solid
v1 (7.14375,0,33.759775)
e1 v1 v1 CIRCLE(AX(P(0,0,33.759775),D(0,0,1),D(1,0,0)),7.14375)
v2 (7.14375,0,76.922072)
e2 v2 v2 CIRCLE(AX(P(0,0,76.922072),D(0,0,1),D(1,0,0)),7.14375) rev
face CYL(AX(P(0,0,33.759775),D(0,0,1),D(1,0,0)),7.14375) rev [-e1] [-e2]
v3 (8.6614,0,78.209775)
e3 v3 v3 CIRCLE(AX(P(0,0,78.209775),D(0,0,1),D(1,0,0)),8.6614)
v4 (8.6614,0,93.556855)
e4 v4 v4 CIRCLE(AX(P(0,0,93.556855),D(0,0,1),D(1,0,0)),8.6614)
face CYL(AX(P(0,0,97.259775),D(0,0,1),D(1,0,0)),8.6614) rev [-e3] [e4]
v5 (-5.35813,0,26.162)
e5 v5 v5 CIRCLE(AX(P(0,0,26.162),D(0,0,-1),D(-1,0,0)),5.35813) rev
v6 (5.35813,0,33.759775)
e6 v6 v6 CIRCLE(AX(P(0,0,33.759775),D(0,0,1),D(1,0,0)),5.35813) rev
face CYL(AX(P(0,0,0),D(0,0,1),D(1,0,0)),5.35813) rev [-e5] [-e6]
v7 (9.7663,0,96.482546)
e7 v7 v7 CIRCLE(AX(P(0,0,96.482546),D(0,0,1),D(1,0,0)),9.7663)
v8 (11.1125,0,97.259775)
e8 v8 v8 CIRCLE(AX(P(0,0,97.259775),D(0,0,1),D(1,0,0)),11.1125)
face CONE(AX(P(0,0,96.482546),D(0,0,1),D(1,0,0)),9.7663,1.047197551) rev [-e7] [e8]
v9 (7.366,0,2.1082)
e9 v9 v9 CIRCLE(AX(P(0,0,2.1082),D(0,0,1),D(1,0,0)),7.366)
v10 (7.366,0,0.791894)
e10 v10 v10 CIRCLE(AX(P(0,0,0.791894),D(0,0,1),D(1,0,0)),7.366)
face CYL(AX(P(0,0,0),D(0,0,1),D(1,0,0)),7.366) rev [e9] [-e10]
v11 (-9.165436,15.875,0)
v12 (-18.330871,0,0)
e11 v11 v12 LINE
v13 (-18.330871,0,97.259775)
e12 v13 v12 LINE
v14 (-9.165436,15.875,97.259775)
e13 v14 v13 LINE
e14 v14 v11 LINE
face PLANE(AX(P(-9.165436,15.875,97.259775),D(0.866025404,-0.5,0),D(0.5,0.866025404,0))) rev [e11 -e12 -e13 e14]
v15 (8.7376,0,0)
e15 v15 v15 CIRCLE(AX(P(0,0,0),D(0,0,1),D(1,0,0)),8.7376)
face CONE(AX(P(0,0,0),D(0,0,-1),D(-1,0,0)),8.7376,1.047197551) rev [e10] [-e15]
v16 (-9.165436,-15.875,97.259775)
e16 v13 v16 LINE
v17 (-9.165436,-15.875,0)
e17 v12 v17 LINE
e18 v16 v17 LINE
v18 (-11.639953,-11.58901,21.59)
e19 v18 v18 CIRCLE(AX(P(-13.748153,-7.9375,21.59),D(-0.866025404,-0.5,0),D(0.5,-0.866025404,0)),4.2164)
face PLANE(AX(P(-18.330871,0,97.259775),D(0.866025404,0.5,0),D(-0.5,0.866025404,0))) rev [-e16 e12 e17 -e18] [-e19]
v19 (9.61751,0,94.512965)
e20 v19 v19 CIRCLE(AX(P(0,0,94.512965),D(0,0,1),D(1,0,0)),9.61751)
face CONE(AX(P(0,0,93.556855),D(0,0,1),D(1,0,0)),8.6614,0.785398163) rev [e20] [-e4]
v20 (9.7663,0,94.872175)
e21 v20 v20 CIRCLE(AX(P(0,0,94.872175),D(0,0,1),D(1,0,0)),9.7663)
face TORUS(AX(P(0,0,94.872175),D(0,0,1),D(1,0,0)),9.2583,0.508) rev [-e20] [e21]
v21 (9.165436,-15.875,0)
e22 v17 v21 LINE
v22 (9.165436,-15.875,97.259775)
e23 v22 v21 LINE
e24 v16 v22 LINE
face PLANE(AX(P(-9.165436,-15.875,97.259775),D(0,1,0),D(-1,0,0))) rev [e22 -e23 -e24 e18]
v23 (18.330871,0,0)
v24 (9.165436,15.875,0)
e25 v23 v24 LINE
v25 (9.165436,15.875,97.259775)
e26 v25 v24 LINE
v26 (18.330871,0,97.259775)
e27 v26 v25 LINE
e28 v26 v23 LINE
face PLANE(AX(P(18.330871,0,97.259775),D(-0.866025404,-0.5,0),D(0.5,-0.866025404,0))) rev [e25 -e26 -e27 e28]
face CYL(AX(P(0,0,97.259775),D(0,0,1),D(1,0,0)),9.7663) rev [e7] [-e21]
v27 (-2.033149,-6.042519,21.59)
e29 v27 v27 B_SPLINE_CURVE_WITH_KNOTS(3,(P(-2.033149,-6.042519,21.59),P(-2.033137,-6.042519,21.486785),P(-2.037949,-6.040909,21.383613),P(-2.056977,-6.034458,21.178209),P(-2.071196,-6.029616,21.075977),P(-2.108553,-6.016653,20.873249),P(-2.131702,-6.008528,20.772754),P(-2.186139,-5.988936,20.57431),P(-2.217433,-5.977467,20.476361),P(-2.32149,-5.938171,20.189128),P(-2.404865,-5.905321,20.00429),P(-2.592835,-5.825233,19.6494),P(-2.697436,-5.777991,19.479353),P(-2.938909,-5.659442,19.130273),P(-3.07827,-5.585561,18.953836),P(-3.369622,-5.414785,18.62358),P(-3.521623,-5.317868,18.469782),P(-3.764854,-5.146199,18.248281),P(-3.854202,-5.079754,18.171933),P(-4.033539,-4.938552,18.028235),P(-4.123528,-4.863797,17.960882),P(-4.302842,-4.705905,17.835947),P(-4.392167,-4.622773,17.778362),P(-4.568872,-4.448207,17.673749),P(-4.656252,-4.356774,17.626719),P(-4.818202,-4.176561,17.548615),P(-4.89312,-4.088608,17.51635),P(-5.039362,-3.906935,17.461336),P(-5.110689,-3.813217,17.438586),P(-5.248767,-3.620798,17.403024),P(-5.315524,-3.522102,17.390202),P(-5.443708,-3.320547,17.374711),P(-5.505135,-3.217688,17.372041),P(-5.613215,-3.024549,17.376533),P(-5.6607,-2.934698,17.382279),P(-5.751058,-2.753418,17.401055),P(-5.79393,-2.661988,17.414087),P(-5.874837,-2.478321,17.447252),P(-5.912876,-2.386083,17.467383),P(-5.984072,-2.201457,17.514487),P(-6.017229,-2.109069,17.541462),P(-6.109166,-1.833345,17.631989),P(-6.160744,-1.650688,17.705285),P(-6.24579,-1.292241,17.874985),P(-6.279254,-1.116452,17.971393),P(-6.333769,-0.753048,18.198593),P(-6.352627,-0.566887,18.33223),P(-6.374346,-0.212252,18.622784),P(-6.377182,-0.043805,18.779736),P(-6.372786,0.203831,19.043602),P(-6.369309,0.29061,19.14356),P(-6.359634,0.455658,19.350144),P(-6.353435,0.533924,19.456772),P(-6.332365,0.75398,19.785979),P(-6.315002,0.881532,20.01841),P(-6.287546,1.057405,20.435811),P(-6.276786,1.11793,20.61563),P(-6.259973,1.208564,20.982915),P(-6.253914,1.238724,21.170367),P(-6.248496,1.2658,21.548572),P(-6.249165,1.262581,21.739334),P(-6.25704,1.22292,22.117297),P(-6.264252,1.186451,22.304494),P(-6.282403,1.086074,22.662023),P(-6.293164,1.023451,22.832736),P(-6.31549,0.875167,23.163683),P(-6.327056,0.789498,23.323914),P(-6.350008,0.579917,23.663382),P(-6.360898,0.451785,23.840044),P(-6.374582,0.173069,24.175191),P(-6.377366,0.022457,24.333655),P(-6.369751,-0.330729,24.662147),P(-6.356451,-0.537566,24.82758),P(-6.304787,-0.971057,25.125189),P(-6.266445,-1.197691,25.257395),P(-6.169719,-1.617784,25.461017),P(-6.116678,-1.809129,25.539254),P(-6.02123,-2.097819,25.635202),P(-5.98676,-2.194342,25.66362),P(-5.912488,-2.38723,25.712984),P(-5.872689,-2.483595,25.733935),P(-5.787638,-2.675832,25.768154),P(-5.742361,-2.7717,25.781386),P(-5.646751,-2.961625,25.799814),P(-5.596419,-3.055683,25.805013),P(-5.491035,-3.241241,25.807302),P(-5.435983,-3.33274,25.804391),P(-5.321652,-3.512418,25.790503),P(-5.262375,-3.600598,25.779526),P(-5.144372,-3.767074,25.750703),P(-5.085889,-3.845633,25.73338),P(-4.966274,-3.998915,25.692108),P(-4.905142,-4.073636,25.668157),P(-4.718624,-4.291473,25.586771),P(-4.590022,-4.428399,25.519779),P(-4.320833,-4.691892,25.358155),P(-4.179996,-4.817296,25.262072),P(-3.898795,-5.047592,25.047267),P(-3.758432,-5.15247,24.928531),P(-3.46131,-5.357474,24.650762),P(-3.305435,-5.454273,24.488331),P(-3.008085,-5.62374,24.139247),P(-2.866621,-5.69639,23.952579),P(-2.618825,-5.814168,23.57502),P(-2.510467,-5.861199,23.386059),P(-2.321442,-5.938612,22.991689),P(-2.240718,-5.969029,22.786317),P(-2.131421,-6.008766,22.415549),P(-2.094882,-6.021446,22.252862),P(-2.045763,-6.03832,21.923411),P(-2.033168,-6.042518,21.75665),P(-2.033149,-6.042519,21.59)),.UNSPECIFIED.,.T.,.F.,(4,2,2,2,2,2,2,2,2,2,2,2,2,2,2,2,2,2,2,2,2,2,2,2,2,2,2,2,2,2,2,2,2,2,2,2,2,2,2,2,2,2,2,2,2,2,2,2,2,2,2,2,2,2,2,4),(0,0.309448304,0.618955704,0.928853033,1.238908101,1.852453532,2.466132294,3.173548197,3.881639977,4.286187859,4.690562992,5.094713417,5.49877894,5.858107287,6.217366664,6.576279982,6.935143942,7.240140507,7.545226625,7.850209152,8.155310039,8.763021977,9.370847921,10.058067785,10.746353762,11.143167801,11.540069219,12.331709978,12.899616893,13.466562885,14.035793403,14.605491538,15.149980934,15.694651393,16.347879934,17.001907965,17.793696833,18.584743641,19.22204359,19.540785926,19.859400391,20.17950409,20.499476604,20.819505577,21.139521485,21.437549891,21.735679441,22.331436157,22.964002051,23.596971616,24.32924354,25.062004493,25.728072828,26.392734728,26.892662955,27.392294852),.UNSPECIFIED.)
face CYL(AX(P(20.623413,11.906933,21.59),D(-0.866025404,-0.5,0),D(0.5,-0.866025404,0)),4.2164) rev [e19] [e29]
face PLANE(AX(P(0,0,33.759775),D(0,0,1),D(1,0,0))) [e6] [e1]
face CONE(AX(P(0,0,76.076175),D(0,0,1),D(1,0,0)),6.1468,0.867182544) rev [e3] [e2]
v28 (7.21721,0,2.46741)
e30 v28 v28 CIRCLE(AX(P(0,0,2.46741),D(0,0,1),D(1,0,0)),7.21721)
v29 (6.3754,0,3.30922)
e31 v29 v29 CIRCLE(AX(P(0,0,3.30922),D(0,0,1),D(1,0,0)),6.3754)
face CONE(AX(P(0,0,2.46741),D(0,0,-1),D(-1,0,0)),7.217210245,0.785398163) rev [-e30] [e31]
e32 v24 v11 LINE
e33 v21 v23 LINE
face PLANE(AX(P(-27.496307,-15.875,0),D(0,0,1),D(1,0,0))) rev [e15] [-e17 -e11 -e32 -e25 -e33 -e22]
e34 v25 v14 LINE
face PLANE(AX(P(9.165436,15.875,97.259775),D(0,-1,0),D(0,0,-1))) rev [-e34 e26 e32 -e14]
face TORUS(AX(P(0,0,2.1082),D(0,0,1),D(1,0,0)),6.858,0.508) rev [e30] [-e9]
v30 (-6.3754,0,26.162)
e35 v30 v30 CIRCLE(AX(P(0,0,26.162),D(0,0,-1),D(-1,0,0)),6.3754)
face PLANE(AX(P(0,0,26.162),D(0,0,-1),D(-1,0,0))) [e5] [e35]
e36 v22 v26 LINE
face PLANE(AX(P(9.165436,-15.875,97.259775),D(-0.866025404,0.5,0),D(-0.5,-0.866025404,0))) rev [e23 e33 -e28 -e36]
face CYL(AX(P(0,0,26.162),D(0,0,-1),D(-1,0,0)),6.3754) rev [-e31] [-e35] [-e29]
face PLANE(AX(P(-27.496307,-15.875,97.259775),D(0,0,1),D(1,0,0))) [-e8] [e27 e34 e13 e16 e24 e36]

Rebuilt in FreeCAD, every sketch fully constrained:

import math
import FreeCAD as App
import Part
import Sketcher
Q = App.Units.Quantity

doc = App.newDocument("Part")
body = doc.addObject("PartDesign::Body", "Body")

# Sketch on XY plane
sketch1 = body.newObject("Sketcher::SketchObject", "Sketch")
sketch1.AttachmentSupport = (doc.getObject("XY_Plane"), [""])
sketch1.MapMode = "FlatFace"
sketch1.addGeometry([
    Part.LineSegment(App.Vector(-18, 0, 0), App.Vector(-9, -16, 0)),  # 0
    Part.LineSegment(App.Vector(-9, -16, 0), App.Vector(9, -16, 0)),  # 1
    Part.LineSegment(App.Vector(9, -16, 0), App.Vector(18, 0, 0)),  # 2
    Part.LineSegment(App.Vector(18, 0, 0), App.Vector(9, 16, 0)),  # 3
    Part.LineSegment(App.Vector(9, 16, 0), App.Vector(-9, 16, 0)),  # 4
    Part.LineSegment(App.Vector(-9, 16, 0), App.Vector(-18, 0, 0)),  # 5
], False)
sketch1.addConstraint([
    Sketcher.Constraint("Coincident", 0, 2, 1, 1),
    Sketcher.Constraint("Coincident", 1, 2, 2, 1),
    Sketcher.Constraint("Coincident", 2, 2, 3, 1),
    Sketcher.Constraint("Coincident", 3, 2, 4, 1),
    Sketcher.Constraint("Coincident", 4, 2, 5, 1),
    Sketcher.Constraint("Coincident", 5, 2, 0, 1),
    Sketcher.Constraint("Horizontal", 1),
    Sketcher.Constraint("Horizontal", 4),
    Sketcher.Constraint("Symmetric", 0, 2, 3, 2, -1, 1),
    Sketcher.Constraint("Symmetric", 2, 2, 5, 2, -1, 1),
    Sketcher.Constraint("PointOnObject", 2, 2, -1),
    Sketcher.Constraint("Parallel", 2, 5),
    Sketcher.Constraint("Vertical", 1, 2, 3, 2),
    Sketcher.Constraint("Angle", 0, Q("-60 deg")),
    Sketcher.Constraint("DistanceY", 1, 2, 3, 2, Q("1.25 in")),
    Sketcher.Constraint("DistanceX", 1, 1, 1, 2, 18.330871),
])
pad1 = body.newObject("PartDesign::Pad", "Pad")
pad1.Profile = sketch1
pad1.Length = 97.259775

# Sketch on XY plane
sketch2 = body.newObject("Sketcher::SketchObject", "Sketch001")
sketch2.AttachmentSupport = (doc.getObject("XY_Plane"), [""])
sketch2.MapMode = "FlatFace"
sketch2.AttachmentOffset = App.Placement(App.Vector(0, 0, 97.259775), App.Rotation())
sketch2.addGeometry(Part.Circle(App.Vector(0, 0, 0), App.Vector(0, 0, 1), 5), False)
sketch2.addConstraint([
    Sketcher.Constraint("Coincident", 0, 3, -1, 1),
    Sketcher.Constraint("Diameter", 0, Q("0.4219 in")),
])
pocket1 = body.newObject("PartDesign::Pocket", "Pocket")
pocket1.Profile = sketch2
pocket1.Type = "ThroughAll"

# Sketch on an angled plane
sketch3 = body.newObject("Sketcher::SketchObject", "Sketch002")
sketch3.Placement = App.Placement(App.Vector(-13.748153, -7.9375, 0), App.Rotation(App.Vector(0, 0, 1), App.Vector(-0.5, 0.866025404, 0), App.Vector(-0.866025404, -0.5, 0), "ZXY"))
sketch3.addGeometry(Part.Circle(App.Vector(21.6, 0, 0), App.Vector(0, 0, 1), 4.2), False)
sketch3.addConstraint([
    Sketcher.Constraint("PointOnObject", 0, 3, -1),
    Sketcher.Constraint("Diameter", 0, Q("0.332 in")),
    Sketcher.Constraint("DistanceX", -1, 1, 0, 3, Q("0.85 in")),
])
pocket2 = body.newObject("PartDesign::Pocket", "Pocket001")
pocket2.Profile = sketch3
pocket2.Type = "UpToFirst"

# Sketch on XY plane
sketch4 = body.newObject("Sketcher::SketchObject", "Sketch003")
sketch4.AttachmentSupport = (doc.getObject("XY_Plane"), [""])
sketch4.MapMode = "FlatFace"
sketch4.addGeometry(Part.Circle(App.Vector(0, 0, 0), App.Vector(0, 0, 1), 6), False)
sketch4.addConstraint([
    Sketcher.Constraint("Coincident", 0, 3, -1, 1),
    Sketcher.Constraint("Diameter", 0, Q("0.502 in")),
])
pocket3 = body.newObject("PartDesign::Pocket", "Pocket002")
pocket3.Profile = sketch4
pocket3.Length = Q("1.03 in")
pocket3.Reversed = True

# Sketch on XY plane
sketch5 = body.newObject("Sketcher::SketchObject", "Sketch004")
sketch5.AttachmentSupport = (doc.getObject("XY_Plane"), [""])
sketch5.MapMode = "FlatFace"
sketch5.AttachmentOffset = App.Placement(App.Vector(0, 0, 97.259775), App.Rotation())
sketch5.addGeometry(Part.Circle(App.Vector(0, 0, 0), App.Vector(0, 0, 1), 7), False)
sketch5.addConstraint([
    Sketcher.Constraint("Coincident", 0, 3, -1, 1),
    Sketcher.Constraint("Diameter", 0, Q("0.5625 in")),
])
pocket4 = body.newObject("PartDesign::Pocket", "Pocket003")
pocket4.Profile = sketch5
pocket4.Length = Q("2.5 in")

# Sketch on XZ plane
sketch6 = body.newObject("Sketcher::SketchObject", "Sketch005")
sketch6.AttachmentSupport = (doc.getObject("XZ_Plane"), [""])
sketch6.MapMode = "FlatFace"
sketch6.addGeometry([
    Part.LineSegment(App.Vector(0, 97.26, 0), App.Vector(0, 76.08, 0)),  # 0
    Part.LineSegment(App.Vector(0, 76.08, 0), App.Vector(-6.15, 76.08, 0)),  # 1
    Part.LineSegment(App.Vector(-6.15, 76.08, 0), App.Vector(-8.66, 78.21, 0)),  # 2
    Part.LineSegment(App.Vector(-8.66, 78.21, 0), App.Vector(-8.66, 93.56, 0)),  # 3
    Part.LineSegment(App.Vector(-8.66, 93.56, 0), App.Vector(-9.62, 94.51, 0)),  # 4
    Part.ArcOfCircle(Part.Circle(App.Vector(-9.26, 94.87, 0), App.Vector(0, 0, 1), 0.51), math.radians(180), math.radians(225)),  # 5
    Part.LineSegment(App.Vector(-9.77, 94.87, 0), App.Vector(-9.77, 96.48, 0)),  # 6
    Part.LineSegment(App.Vector(-9.77, 96.48, 0), App.Vector(-11.11, 97.26, 0)),  # 7
    Part.LineSegment(App.Vector(-11.11, 97.26, 0), App.Vector(0, 97.26, 0)),  # 8
], False)
sketch6.addConstraint([
    Sketcher.Constraint("Coincident", 0, 2, 1, 1),
    Sketcher.Constraint("Coincident", 1, 2, 2, 1),
    Sketcher.Constraint("Coincident", 2, 2, 3, 1),
    Sketcher.Constraint("Coincident", 3, 2, 4, 1),
    Sketcher.Constraint("Tangent", 4, 2, 5, 2),
    Sketcher.Constraint("Tangent", 5, 1, 6, 1),
    Sketcher.Constraint("Coincident", 6, 2, 7, 1),
    Sketcher.Constraint("Coincident", 7, 2, 8, 1),
    Sketcher.Constraint("Coincident", 8, 2, 0, 1),
    Sketcher.Constraint("Vertical", 0),
    Sketcher.Constraint("Horizontal", 1),
    Sketcher.Constraint("Vertical", 3),
    Sketcher.Constraint("Vertical", 6),
    Sketcher.Constraint("Horizontal", 8),
    Sketcher.Constraint("PointOnObject", 0, 2, -2),
    Sketcher.Constraint("Radius", 5, Q("0.02 in")),
    Sketcher.Constraint("Angle", 4, Q("135 deg")),
    Sketcher.Constraint("Angle", 7, Q("150 deg")),
    Sketcher.Constraint("DistanceX", 1, 2, 1, 1, Q("0.242 in")),
    Sketcher.Constraint("DistanceX", 8, 1, 8, 2, Q("0.4375 in")),
    Sketcher.Constraint("DistanceY", 0, 2, 0, 1, Q("0.834 in")),
    Sketcher.Constraint("DistanceY", 0, 2, 5, 3, Q("0.74 in")),
    Sketcher.Constraint("DistanceX", 2, 2, -1, 1, Q("0.341 in")),
    Sketcher.Constraint("DistanceY", 1, 2, 2, 2, Q("0.084 in")),
    Sketcher.Constraint("DistanceX", 7, 2, 6, 2, Q("0.053 in")),
    Sketcher.Constraint("DistanceY", -1, 1, 5, 3, 94.872175),
])
groove = body.newObject("PartDesign::Groove", "Groove")
groove.Profile = sketch6
groove.ReferenceAxis = (sketch6, ["V_Axis"])
groove.Angle = 360

# Sketch on XZ plane
sketch7 = body.newObject("Sketcher::SketchObject", "Sketch006")
sketch7.AttachmentSupport = (doc.getObject("XZ_Plane"), [""])
sketch7.MapMode = "FlatFace"
sketch7.addGeometry([
    Part.LineSegment(App.Vector(0, 0, 0), App.Vector(-8.74, 0, 0)),  # 0
    Part.LineSegment(App.Vector(-8.74, 0, 0), App.Vector(-7.37, 0.79, 0)),  # 1
    Part.LineSegment(App.Vector(-7.37, 0.79, 0), App.Vector(-7.37, 2.11, 0)),  # 2
    Part.ArcOfCircle(Part.Circle(App.Vector(-6.86, 2.11, 0), App.Vector(0, 0, 1), 0.51), math.radians(135), math.radians(180)),  # 3
    Part.LineSegment(App.Vector(-7.22, 2.47, 0), App.Vector(-6.38, 3.31, 0)),  # 4
    Part.LineSegment(App.Vector(-6.38, 3.31, 0), App.Vector(-6.38, 17.91, 0)),  # 5
    Part.LineSegment(App.Vector(-6.38, 17.91, 0), App.Vector(0, 17.91, 0)),  # 6
    Part.LineSegment(App.Vector(0, 17.91, 0), App.Vector(0, 0, 0)),  # 7
], False)
sketch7.addConstraint([
    Sketcher.Constraint("Coincident", 0, 2, 1, 1),
    Sketcher.Constraint("Coincident", 1, 2, 2, 1),
    Sketcher.Constraint("Tangent", 2, 2, 3, 2),
    Sketcher.Constraint("Tangent", 3, 1, 4, 1),
    Sketcher.Constraint("Coincident", 4, 2, 5, 1),
    Sketcher.Constraint("Coincident", 5, 2, 6, 1),
    Sketcher.Constraint("Coincident", 6, 2, 7, 1),
    Sketcher.Constraint("Coincident", 7, 2, 0, 1),
    Sketcher.Constraint("Horizontal", 0),
    Sketcher.Constraint("Vertical", 2),
    Sketcher.Constraint("Vertical", 5),
    Sketcher.Constraint("Horizontal", 6),
    Sketcher.Constraint("Vertical", 7),
    Sketcher.Constraint("Coincident", 7, 2, -1, 1),
    Sketcher.Constraint("Radius", 3, Q("0.02 in")),
    Sketcher.Constraint("Angle", 1, Q("30 deg")),
    Sketcher.Constraint("Angle", 4, Q("45 deg")),
    Sketcher.Constraint("DistanceX", 0, 2, 0, 1, Q("0.344 in")),
    Sketcher.Constraint("DistanceX", 6, 1, 6, 2, Q("0.251 in")),
    Sketcher.Constraint("DistanceY", 7, 2, 7, 1, Q("0.705 in")),
    Sketcher.Constraint("DistanceX", 3, 3, -1, 1, Q("0.27 in")),
    Sketcher.Constraint("DistanceY", -1, 1, 3, 3, Q("0.083 in")),
])
groove2 = body.newObject("PartDesign::Groove", "Groove001")
groove2.Profile = sketch7
groove2.ReferenceAxis = (sketch7, ["V_Axis"])
groove2.Angle = 360

doc.recompute()
